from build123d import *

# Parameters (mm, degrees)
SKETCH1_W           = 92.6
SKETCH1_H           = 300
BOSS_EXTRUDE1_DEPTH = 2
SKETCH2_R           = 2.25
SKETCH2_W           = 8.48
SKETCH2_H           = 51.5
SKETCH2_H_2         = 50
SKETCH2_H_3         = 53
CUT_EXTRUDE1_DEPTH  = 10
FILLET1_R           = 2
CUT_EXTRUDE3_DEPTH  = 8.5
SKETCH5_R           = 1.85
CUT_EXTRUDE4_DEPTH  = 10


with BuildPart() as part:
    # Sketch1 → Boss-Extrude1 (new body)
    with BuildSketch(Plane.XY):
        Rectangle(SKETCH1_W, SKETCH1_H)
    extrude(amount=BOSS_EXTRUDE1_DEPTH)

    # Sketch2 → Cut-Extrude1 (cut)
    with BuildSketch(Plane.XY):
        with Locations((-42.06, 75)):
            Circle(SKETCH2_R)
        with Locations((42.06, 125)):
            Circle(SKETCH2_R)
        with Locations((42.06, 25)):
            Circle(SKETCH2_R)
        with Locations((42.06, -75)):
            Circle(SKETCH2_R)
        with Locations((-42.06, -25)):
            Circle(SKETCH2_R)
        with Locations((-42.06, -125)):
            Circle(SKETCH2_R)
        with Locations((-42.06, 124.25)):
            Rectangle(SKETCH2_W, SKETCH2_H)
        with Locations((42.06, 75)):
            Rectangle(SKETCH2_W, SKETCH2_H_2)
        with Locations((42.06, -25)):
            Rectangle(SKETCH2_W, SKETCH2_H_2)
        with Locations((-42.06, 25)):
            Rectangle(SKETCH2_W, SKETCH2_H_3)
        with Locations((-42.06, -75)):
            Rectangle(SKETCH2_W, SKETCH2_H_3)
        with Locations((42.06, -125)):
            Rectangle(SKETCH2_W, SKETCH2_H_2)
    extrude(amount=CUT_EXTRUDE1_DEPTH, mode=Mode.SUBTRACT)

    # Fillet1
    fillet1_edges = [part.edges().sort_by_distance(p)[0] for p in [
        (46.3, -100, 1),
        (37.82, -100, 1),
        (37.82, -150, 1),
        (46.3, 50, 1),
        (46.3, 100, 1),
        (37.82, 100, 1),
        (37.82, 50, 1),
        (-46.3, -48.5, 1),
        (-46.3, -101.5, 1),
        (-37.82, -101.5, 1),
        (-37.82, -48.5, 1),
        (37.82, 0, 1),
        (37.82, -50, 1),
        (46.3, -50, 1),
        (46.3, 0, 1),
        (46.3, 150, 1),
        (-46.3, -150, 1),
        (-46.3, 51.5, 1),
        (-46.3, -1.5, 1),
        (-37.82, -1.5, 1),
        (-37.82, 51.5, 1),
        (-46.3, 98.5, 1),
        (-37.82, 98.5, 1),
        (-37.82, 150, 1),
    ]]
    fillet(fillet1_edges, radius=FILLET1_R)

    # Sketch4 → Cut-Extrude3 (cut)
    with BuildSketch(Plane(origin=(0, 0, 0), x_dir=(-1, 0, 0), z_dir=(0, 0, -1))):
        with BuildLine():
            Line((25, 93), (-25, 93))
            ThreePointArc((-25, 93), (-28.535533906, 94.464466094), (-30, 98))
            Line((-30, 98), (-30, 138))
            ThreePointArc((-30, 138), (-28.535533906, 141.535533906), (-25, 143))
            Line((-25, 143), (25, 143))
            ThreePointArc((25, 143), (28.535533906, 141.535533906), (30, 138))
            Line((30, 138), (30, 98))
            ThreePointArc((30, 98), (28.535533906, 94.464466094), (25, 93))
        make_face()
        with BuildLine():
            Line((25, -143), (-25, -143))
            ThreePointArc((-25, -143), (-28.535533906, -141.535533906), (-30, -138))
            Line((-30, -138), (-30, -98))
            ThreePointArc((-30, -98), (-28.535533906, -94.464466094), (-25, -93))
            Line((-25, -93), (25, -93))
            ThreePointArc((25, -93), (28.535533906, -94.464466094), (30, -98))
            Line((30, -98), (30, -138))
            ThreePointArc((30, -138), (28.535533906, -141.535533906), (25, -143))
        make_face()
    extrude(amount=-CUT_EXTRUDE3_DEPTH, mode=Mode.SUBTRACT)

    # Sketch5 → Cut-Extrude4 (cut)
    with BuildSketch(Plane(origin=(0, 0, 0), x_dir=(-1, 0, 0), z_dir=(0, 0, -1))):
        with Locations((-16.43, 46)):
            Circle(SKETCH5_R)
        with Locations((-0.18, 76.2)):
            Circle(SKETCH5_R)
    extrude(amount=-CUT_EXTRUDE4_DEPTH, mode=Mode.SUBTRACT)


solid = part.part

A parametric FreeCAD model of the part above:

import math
import FreeCAD as App
import Part
import Sketcher
from FreeCAD import Vector


def edges_at(feature, points):
    """Names of the edges that pass closest to the given points."""
    edges = feature.Shape.Edges
    near = lambda p: min(range(len(edges)), key=lambda i: edges[i].distToShape(Part.Vertex(*p))[0])
    return sorted({f"Edge{near(p) + 1}" for p in points})

doc = App.newDocument("Part")
params = doc.addObject("Spreadsheet::Sheet", "Params")
for row, (alias, value) in enumerate([
    ("sketch1_height", "300 mm"),
    ("sketch1_width", "92.6 mm"),
    ("pad1_length", "2 mm"),
    ("sketch2_diameter", "4.5 mm"),
    ("sketch2_height", "50 mm"),
    ("sketch2_height2", "53 mm"),
    ("sketch2_height3", "51.5 mm"),
    ("sketch2_width", "8.48 mm"),
    ("pocket1_length", "10 mm"),
    ("fillet_radius", "2 mm"),
    ("sketch3_radius", "5 mm"),
    ("sketch3_width", "50 mm"),
    ("sketch3_height", "40 mm"),
    ("pocket2_length", "8.5 mm"),
    ("sketch4_diameter", "3.7 mm"),
    ("pocket3_length", "10 mm"),
], start=1):
    params.set(f"A{row}", alias)
    params.set(f"B{row}", "=" + value)
    params.setAlias(f"B{row}", alias)

body = doc.addObject("PartDesign::Body", "Body")

# Sketch on XY plane
sketch1 = body.newObject("Sketcher::SketchObject", "Sketch")
sketch1.AttachmentSupport = (doc.getObject("XY_Plane"), [""])
sketch1.MapMode = "FlatFace"
sketch1.addGeometry([
    Part.LineSegment(Vector(-46.3, 150, 0), Vector(-46.3, -150, 0)),
    Part.LineSegment(Vector(-46.3, -150, 0), Vector(46.3, -150, 0)),
    Part.LineSegment(Vector(46.3, -150, 0), Vector(46.3, 150, 0)),
    Part.LineSegment(Vector(46.3, 150, 0), Vector(-46.3, 150, 0)),
], False)
sketch1.addConstraint([
    Sketcher.Constraint("Coincident", 0, 2, 1, 1),
    Sketcher.Constraint("Coincident", 1, 2, 2, 1),
    Sketcher.Constraint("Coincident", 2, 2, 3, 1),
    Sketcher.Constraint("Coincident", 3, 2, 0, 1),
    Sketcher.Constraint("Vertical", 0),
    Sketcher.Constraint("Horizontal", 1),
    Sketcher.Constraint("Vertical", 2),
    Sketcher.Constraint("Horizontal", 3),
    Sketcher.Constraint("Symmetric", 0, 2, 2, 2, -1, 1),
    Sketcher.Constraint("DistanceY", 0, 2, 0, 1, 300.0),
    Sketcher.Constraint("DistanceX", 1, 1, 1, 2, 92.6),
])
sketch1.setExpression("Constraints[9]", "Params.sketch1_height")
sketch1.setExpression("Constraints[10]", "Params.sketch1_width")
pad1 = body.newObject("PartDesign::Pad", "Pad")
pad1.Profile = sketch1
pad1.setExpression("Length", "Params.pad1_length")

# Sketch on XY plane
sketch2 = body.newObject("Sketcher::SketchObject", "Sketch001")
sketch2.AttachmentSupport = (doc.getObject("XY_Plane"), [""])
sketch2.MapMode = "FlatFace"
sketch2.addGeometry([
    Part.Circle(Vector(-42.06, 75, 0), Vector(0, 0, 1), 2.25),  # 0
    Part.Circle(Vector(42.06, 125, 0), Vector(0, 0, 1), 2.25),  # 1
    Part.Circle(Vector(42.06, 25, 0), Vector(0, 0, 1), 2.25),  # 2
    Part.Circle(Vector(42.06, -75, 0), Vector(0, 0, 1), 2.25),  # 3
    Part.Circle(Vector(-42.06, -25, 0), Vector(0, 0, 1), 2.25),  # 4
    Part.Circle(Vector(-42.06, -125, 0), Vector(0, 0, 1), 2.25),  # 5
    Part.LineSegment(Vector(-46.3, 150, 0), Vector(-46.3, 98.5, 0)),  # 6
    Part.LineSegment(Vector(-46.3, 98.5, 0), Vector(-37.82, 98.5, 0)),  # 7
    Part.LineSegment(Vector(-37.82, 98.5, 0), Vector(-37.82, 150, 0)),  # 8
    Part.LineSegment(Vector(-37.82, 150, 0), Vector(-46.3, 150, 0)),  # 9
    Part.LineSegment(Vector(37.82, 100, 0), Vector(37.82, 50, 0)),  # 10
    Part.LineSegment(Vector(37.82, 50, 0), Vector(46.3, 50, 0)),  # 11
    Part.LineSegment(Vector(46.3, 50, 0), Vector(46.3, 100, 0)),  # 12
    Part.LineSegment(Vector(46.3, 100, 0), Vector(37.82, 100, 0)),  # 13
    Part.LineSegment(Vector(37.82, 0, 0), Vector(37.82, -50, 0)),  # 14
    Part.LineSegment(Vector(37.82, -50, 0), Vector(46.3, -50, 0)),  # 15
    Part.LineSegment(Vector(46.3, -50, 0), Vector(46.3, 0, 0)),  # 16
    Part.LineSegment(Vector(46.3, 0, 0), Vector(37.82, 0, 0)),  # 17
    Part.LineSegment(Vector(-46.3, 51.5, 0), Vector(-46.3, -1.5, 0)),  # 18
    Part.LineSegment(Vector(-46.3, -1.5, 0), Vector(-37.82, -1.5, 0)),  # 19
    Part.LineSegment(Vector(-37.82, -1.5, 0), Vector(-37.82, 51.5, 0)),  # 20
    Part.LineSegment(Vector(-37.82, 51.5, 0), Vector(-46.3, 51.5, 0)),  # 21
    Part.LineSegment(Vector(-46.3, -48.5, 0), Vector(-46.3, -101.5, 0)),  # 22
    Part.LineSegment(Vector(-46.3, -101.5, 0), Vector(-37.82, -101.5, 0)),  # 23
    Part.LineSegment(Vector(-37.82, -101.5, 0), Vector(-37.82, -48.5, 0)),  # 24
    Part.LineSegment(Vector(-37.82, -48.5, 0), Vector(-46.3, -48.5, 0)),  # 25
    Part.LineSegment(Vector(37.82, -100, 0), Vector(37.82, -150, 0)),  # 26
    Part.LineSegment(Vector(37.82, -150, 0), Vector(46.3, -150, 0)),  # 27
    Part.LineSegment(Vector(46.3, -150, 0), Vector(46.3, -100, 0)),  # 28
    Part.LineSegment(Vector(46.3, -100, 0), Vector(37.82, -100, 0)),  # 29
], False)
sketch2.addConstraint([
    Sketcher.Constraint("Coincident", 6, 2, 7, 1),
    Sketcher.Constraint("Coincident", 7, 2, 8, 1),
    Sketcher.Constraint("Coincident", 8, 2, 9, 1),
    Sketcher.Constraint("Coincident", 9, 2, 6, 1),
    Sketcher.Constraint("Coincident", 10, 2, 11, 1),
    Sketcher.Constraint("Coincident", 11, 2, 12, 1),
    Sketcher.Constraint("Coincident", 12, 2, 13, 1),
    Sketcher.Constraint("Coincident", 13, 2, 10, 1),
    Sketcher.Constraint("Coincident", 14, 2, 15, 1),
    Sketcher.Constraint("Coincident", 15, 2, 16, 1),
    Sketcher.Constraint("Coincident", 16, 2, 17, 1),
    Sketcher.Constraint("Coincident", 17, 2, 14, 1),
    Sketcher.Constraint("Coincident", 18, 2, 19, 1),
    Sketcher.Constraint("Coincident", 19, 2, 20, 1),
    Sketcher.Constraint("Coincident", 20, 2, 21, 1),
    Sketcher.Constraint("Coincident", 21, 2, 18, 1),
    Sketcher.Constraint("Coincident", 22, 2, 23, 1),
    Sketcher.Constraint("Coincident", 23, 2, 24, 1),
    Sketcher.Constraint("Coincident", 24, 2, 25, 1),
    Sketcher.Constraint("Coincident", 25, 2, 22, 1),
    Sketcher.Constraint("Coincident", 26, 2, 27, 1),
    Sketcher.Constraint("Coincident", 27, 2, 28, 1),
    Sketcher.Constraint("Coincident", 28, 2, 29, 1),
    Sketcher.Constraint("Coincident", 29, 2, 26, 1),
    Sketcher.Constraint("Vertical", 6),
    Sketcher.Constraint("Horizontal", 7),
    Sketcher.Constraint("Vertical", 8),
    Sketcher.Constraint("Horizontal", 9),
    Sketcher.Constraint("Vertical", 10),
    Sketcher.Constraint("Horizontal", 11),
    Sketcher.Constraint("Vertical", 12),
    Sketcher.Constraint("Horizontal", 13),
    Sketcher.Constraint("Vertical", 14),
    Sketcher.Constraint("Horizontal", 15),
    Sketcher.Constraint("Vertical", 16),
    Sketcher.Constraint("Horizontal", 17),
    Sketcher.Constraint("Vertical", 18),
    Sketcher.Constraint("Horizontal", 19),
    Sketcher.Constraint("Vertical", 20),
    Sketcher.Constraint("Horizontal", 21),
    Sketcher.Constraint("Vertical", 22),
    Sketcher.Constraint("Horizontal", 23),
    Sketcher.Constraint("Vertical", 24),
    Sketcher.Constraint("Horizontal", 25),
    Sketcher.Constraint("Vertical", 26),
    Sketcher.Constraint("Horizontal", 27),
    Sketcher.Constraint("Vertical", 28),
    Sketcher.Constraint("Horizontal", 29),
    Sketcher.Constraint("Equal", 0, 1),
    Sketcher.Constraint("Equal", 1, 2),
    Sketcher.Constraint("Equal", 2, 3),
    Sketcher.Constraint("Equal", 3, 4),
    Sketcher.Constraint("Equal", 4, 5),
    Sketcher.Constraint("Symmetric", 0, 3, 3, 3, -1, 1),
    Sketcher.Constraint("Symmetric", 2, 3, 4, 3, -1, 1),
    Sketcher.Constraint("Symmetric", 1, 3, 5, 3, -1, 1),
    Sketcher.Constraint("Symmetric", 8, 2, 26, 2, -1, 1),
    Sketcher.Constraint("Symmetric", 10, 2, 14, 2, -1),
    Sketcher.Constraint("Symmetric", 12, 2, 28, 2, -1),
    Sketcher.Constraint("PointOnObject", 16, 2, -1),
    Sketcher.Constraint("Vertical", 1, 3, 2, 3),
    Sketcher.Constraint("Vertical", 2, 3, 3, 3),
    Sketcher.Constraint("Vertical", 12, 2, 15, 2),
    Sketcher.Constraint("Vertical", 9, 2, 18, 2),
    Sketcher.Constraint("Vertical", 8, 2, 19, 2),
    Sketcher.Constraint("Vertical", 21, 2, 22, 2),
    Sketcher.Constraint("Vertical", 20, 2, 23, 2),
    Sketcher.Constraint("Vertical", 17, 2, 26, 2),
    Sketcher.Constraint("Equal", 9, 11),
    Sketcher.Constraint("Equal", 12, 14),
    Sketcher.Constraint("Equal", 20, 22),
    Sketcher.Constraint("Equal", 16, 26),
    Sketcher.Constraint("Diameter", 0, 4.5),
    Sketcher.Constraint("DistanceY", 10, 2, 10, 1, 50.0),
    Sketcher.Constraint("DistanceY", 18, 2, 18, 1, 53.0),
    Sketcher.Constraint("DistanceY", 6, 2, 6, 1, 51.5),
    Sketcher.Constraint("DistanceY", -1, 1, 0, 3, 75.0),
    Sketcher.Constraint("DistanceY", -1, 1, 1, 3, 125.0),
    Sketcher.Constraint("DistanceY", -1, 1, 2, 3, 25.0),
    Sketcher.Constraint("DistanceY", 20, 2, 7, 2, 47.0),
    Sketcher.Constraint("DistanceY", 22, 2, 18, 2, 100.0),
    Sketcher.Constraint("DistanceX", 7, 1, 7, 2, 8.48),
    Sketcher.Constraint("DistanceX", 6, 2, -1, 1, 46.3),
    Sketcher.Constraint("DistanceX", 0, 3, -1, 1, 42.06),
])
sketch2.setExpression("Constraints[72]", "Params.sketch2_diameter")
sketch2.setExpression("Constraints[73]", "Params.sketch2_height")
sketch2.setExpression("Constraints[74]", "Params.sketch2_height2")
sketch2.setExpression("Constraints[75]", "Params.sketch2_height3")
sketch2.setExpression("Constraints[81]", "Params.sketch2_width")
pocket1 = body.newObject("PartDesign::Pocket", "Pocket")
pocket1.Profile = sketch2
pocket1.setExpression("Length", "Params.pocket1_length")
pocket1.Reversed = True
doc.recompute()

fillet = body.newObject("PartDesign::Fillet", "Fillet")
fillet.Base = (pocket1, edges_at(pocket1, [
    (46.3, -100, 1),
    (37.82, -100, 1),
    (37.82, -150, 1),
    (46.3, 50, 1),
    (46.3, 100, 1),
    (37.82, 100, 1),
    (37.82, 50, 1),
    (-46.3, -48.5, 1),
    (-46.3, -101.5, 1),
    (-37.82, -101.5, 1),
    (-37.82, -48.5, 1),
    (37.82, 0, 1),
    (37.82, -50, 1),
    (46.3, -50, 1),
    (46.3, 0, 1),
    (46.3, 150, 1),
    (-46.3, -150, 1),
    (-46.3, 51.5, 1),
    (-46.3, -1.5, 1),
    (-37.82, -1.5, 1),
    (-37.82, 51.5, 1),
    (-46.3, 98.5, 1),
    (-37.82, 98.5, 1),
    (-37.82, 150, 1),
]))
fillet.setExpression("Radius", "Params.fillet_radius")

# Sketch on XY plane
sketch3 = body.newObject("Sketcher::SketchObject", "Sketch002")
sketch3.AttachmentSupport = (doc.getObject("XY_Plane"), [""])
sketch3.MapMode = "FlatFace"
sketch3.addGeometry([
    Part.LineSegment(Vector(25, 93, 0), Vector(-25, 93, 0)),  # 0
    Part.ArcOfCircle(Part.Circle(Vector(-25, 98, 0), Vector(0, 0, 1), 5), math.radians(180), math.radians(270)),  # 1
    Part.LineSegment(Vector(-30, 98, 0), Vector(-30, 138, 0)),  # 2
    Part.ArcOfCircle(Part.Circle(Vector(-25, 138, 0), Vector(0, 0, 1), 5), math.radians(90), math.radians(180)),  # 3
    Part.LineSegment(Vector(-25, 143, 0), Vector(25, 143, 0)),  # 4
    Part.ArcOfCircle(Part.Circle(Vector(25, 138, 0), Vector(0, 0, 1), 5), math.radians(0), math.radians(90)),  # 5
    Part.LineSegment(Vector(30, 138, 0), Vector(30, 98, 0)),  # 6
    Part.ArcOfCircle(Part.Circle(Vector(25, 98, 0), Vector(0, 0, 1), 5), math.radians(-90), math.radians(0)),  # 7
    Part.LineSegment(Vector(25, -143, 0), Vector(-25, -143, 0)),  # 8
    Part.ArcOfCircle(Part.Circle(Vector(-25, -138, 0), Vector(0, 0, 1), 5), math.radians(180), math.radians(270)),  # 9
    Part.LineSegment(Vector(-30, -138, 0), Vector(-30, -98, 0)),  # 10
    Part.ArcOfCircle(Part.Circle(Vector(-25, -98, 0), Vector(0, 0, 1), 5), math.radians(90), math.radians(180)),  # 11
    Part.LineSegment(Vector(-25, -93, 0), Vector(25, -93, 0)),  # 12
    Part.ArcOfCircle(Part.Circle(Vector(25, -98, 0), Vector(0, 0, 1), 5), math.radians(0), math.radians(90)),  # 13
    Part.LineSegment(Vector(30, -98, 0), Vector(30, -138, 0)),  # 14
    Part.ArcOfCircle(Part.Circle(Vector(25, -138, 0), Vector(0, 0, 1), 5), math.radians(-90), math.radians(0)),  # 15
], False)
sketch3.addConstraint([
    Sketcher.Constraint("Tangent", 0, 2, 1, 2),
    Sketcher.Constraint("Tangent", 1, 1, 2, 1),
    Sketcher.Constraint("Tangent", 2, 2, 3, 2),
    Sketcher.Constraint("Tangent", 3, 1, 4, 1),
    Sketcher.Constraint("Tangent", 4, 2, 5, 2),
    Sketcher.Constraint("Tangent", 5, 1, 6, 1),
    Sketcher.Constraint("Tangent", 6, 2, 7, 2),
    Sketcher.Constraint("Tangent", 7, 1, 0, 1),
    Sketcher.Constraint("Tangent", 8, 2, 9, 2),
    Sketcher.Constraint("Tangent", 9, 1, 10, 1),
    Sketcher.Constraint("Tangent", 10, 2, 11, 2),
    Sketcher.Constraint("Tangent", 11, 1, 12, 1),
    Sketcher.Constraint("Tangent", 12, 2, 13, 2),
    Sketcher.Constraint("Tangent", 13, 1, 14, 1),
    Sketcher.Constraint("Tangent", 14, 2, 15, 2),
    Sketcher.Constraint("Tangent", 15, 1, 8, 1),
    Sketcher.Constraint("Horizontal", 0),
    Sketcher.Constraint("Vertical", 2),
    Sketcher.Constraint("Horizontal", 4),
    Sketcher.Constraint("Vertical", 6),
    Sketcher.Constraint("Horizontal", 8),
    Sketcher.Constraint("Vertical", 10),
    Sketcher.Constraint("Horizontal", 12),
    Sketcher.Constraint("Vertical", 14),
    Sketcher.Constraint("Equal", 1, 3),
    Sketcher.Constraint("Equal", 3, 5),
    Sketcher.Constraint("Equal", 5, 7),
    Sketcher.Constraint("Equal", 7, 9),
    Sketcher.Constraint("Equal", 9, 11),
    Sketcher.Constraint("Equal", 11, 13),
    Sketcher.Constraint("Equal", 13, 15),
    Sketcher.Constraint("Symmetric", 5, 3, 9, 3, -1, 1),
    Sketcher.Constraint("Symmetric", 1, 3, 13, 3, -1, 1),
    Sketcher.Constraint("Vertical", 3, 3, 9, 3),
    Sketcher.Constraint("Radius", 1, 5.0),
    Sketcher.Constraint("DistanceX", 0, 2, 0, 1, 50.0),
    Sketcher.Constraint("DistanceY", 2, 1, 2, 2, 40.0),
    Sketcher.Constraint("DistanceY", -1, 1, 1, 3, 98.0),
])
sketch3.setExpression("Constraints[34]", "Params.sketch3_radius")
sketch3.setExpression("Constraints[35]", "Params.sketch3_width")
sketch3.setExpression("Constraints[36]", "Params.sketch3_height")
pocket2 = body.newObject("PartDesign::Pocket", "Pocket001")
pocket2.Profile = sketch3
pocket2.setExpression("Length", "Params.pocket2_length")
pocket2.Reversed = True

# Sketch on XY plane
sketch4 = body.newObject("Sketcher::SketchObject", "Sketch003")
sketch4.AttachmentSupport = (doc.getObject("XY_Plane"), [""])
sketch4.MapMode = "FlatFace"
sketch4.addGeometry([
    Part.Circle(Vector(16.43, 46, 0), Vector(0, 0, 1), 1.85),
    Part.Circle(Vector(0.18, 76.2, 0), Vector(0, 0, 1), 1.85),
], False)
sketch4.addConstraint([
    Sketcher.Constraint("Equal", 0, 1),
    Sketcher.Constraint("Diameter", 0, 3.7),
    Sketcher.Constraint("DistanceY", -1, 1, 0, 3, 46.0),
    Sketcher.Constraint("DistanceY", -1, 1, 1, 3, 76.2),
    Sketcher.Constraint("DistanceX", -1, 1, 0, 3, 16.43),
    Sketcher.Constraint("DistanceX", -1, 1, 1, 3, 0.18),
])
sketch4.setExpression("Constraints[1]", "Params.sketch4_diameter")
pocket3 = body.newObject("PartDesign::Pocket", "Pocket002")
pocket3.Profile = sketch4
pocket3.setExpression("Length", "Params.pocket3_length")
pocket3.Reversed = True

doc.recompute()
